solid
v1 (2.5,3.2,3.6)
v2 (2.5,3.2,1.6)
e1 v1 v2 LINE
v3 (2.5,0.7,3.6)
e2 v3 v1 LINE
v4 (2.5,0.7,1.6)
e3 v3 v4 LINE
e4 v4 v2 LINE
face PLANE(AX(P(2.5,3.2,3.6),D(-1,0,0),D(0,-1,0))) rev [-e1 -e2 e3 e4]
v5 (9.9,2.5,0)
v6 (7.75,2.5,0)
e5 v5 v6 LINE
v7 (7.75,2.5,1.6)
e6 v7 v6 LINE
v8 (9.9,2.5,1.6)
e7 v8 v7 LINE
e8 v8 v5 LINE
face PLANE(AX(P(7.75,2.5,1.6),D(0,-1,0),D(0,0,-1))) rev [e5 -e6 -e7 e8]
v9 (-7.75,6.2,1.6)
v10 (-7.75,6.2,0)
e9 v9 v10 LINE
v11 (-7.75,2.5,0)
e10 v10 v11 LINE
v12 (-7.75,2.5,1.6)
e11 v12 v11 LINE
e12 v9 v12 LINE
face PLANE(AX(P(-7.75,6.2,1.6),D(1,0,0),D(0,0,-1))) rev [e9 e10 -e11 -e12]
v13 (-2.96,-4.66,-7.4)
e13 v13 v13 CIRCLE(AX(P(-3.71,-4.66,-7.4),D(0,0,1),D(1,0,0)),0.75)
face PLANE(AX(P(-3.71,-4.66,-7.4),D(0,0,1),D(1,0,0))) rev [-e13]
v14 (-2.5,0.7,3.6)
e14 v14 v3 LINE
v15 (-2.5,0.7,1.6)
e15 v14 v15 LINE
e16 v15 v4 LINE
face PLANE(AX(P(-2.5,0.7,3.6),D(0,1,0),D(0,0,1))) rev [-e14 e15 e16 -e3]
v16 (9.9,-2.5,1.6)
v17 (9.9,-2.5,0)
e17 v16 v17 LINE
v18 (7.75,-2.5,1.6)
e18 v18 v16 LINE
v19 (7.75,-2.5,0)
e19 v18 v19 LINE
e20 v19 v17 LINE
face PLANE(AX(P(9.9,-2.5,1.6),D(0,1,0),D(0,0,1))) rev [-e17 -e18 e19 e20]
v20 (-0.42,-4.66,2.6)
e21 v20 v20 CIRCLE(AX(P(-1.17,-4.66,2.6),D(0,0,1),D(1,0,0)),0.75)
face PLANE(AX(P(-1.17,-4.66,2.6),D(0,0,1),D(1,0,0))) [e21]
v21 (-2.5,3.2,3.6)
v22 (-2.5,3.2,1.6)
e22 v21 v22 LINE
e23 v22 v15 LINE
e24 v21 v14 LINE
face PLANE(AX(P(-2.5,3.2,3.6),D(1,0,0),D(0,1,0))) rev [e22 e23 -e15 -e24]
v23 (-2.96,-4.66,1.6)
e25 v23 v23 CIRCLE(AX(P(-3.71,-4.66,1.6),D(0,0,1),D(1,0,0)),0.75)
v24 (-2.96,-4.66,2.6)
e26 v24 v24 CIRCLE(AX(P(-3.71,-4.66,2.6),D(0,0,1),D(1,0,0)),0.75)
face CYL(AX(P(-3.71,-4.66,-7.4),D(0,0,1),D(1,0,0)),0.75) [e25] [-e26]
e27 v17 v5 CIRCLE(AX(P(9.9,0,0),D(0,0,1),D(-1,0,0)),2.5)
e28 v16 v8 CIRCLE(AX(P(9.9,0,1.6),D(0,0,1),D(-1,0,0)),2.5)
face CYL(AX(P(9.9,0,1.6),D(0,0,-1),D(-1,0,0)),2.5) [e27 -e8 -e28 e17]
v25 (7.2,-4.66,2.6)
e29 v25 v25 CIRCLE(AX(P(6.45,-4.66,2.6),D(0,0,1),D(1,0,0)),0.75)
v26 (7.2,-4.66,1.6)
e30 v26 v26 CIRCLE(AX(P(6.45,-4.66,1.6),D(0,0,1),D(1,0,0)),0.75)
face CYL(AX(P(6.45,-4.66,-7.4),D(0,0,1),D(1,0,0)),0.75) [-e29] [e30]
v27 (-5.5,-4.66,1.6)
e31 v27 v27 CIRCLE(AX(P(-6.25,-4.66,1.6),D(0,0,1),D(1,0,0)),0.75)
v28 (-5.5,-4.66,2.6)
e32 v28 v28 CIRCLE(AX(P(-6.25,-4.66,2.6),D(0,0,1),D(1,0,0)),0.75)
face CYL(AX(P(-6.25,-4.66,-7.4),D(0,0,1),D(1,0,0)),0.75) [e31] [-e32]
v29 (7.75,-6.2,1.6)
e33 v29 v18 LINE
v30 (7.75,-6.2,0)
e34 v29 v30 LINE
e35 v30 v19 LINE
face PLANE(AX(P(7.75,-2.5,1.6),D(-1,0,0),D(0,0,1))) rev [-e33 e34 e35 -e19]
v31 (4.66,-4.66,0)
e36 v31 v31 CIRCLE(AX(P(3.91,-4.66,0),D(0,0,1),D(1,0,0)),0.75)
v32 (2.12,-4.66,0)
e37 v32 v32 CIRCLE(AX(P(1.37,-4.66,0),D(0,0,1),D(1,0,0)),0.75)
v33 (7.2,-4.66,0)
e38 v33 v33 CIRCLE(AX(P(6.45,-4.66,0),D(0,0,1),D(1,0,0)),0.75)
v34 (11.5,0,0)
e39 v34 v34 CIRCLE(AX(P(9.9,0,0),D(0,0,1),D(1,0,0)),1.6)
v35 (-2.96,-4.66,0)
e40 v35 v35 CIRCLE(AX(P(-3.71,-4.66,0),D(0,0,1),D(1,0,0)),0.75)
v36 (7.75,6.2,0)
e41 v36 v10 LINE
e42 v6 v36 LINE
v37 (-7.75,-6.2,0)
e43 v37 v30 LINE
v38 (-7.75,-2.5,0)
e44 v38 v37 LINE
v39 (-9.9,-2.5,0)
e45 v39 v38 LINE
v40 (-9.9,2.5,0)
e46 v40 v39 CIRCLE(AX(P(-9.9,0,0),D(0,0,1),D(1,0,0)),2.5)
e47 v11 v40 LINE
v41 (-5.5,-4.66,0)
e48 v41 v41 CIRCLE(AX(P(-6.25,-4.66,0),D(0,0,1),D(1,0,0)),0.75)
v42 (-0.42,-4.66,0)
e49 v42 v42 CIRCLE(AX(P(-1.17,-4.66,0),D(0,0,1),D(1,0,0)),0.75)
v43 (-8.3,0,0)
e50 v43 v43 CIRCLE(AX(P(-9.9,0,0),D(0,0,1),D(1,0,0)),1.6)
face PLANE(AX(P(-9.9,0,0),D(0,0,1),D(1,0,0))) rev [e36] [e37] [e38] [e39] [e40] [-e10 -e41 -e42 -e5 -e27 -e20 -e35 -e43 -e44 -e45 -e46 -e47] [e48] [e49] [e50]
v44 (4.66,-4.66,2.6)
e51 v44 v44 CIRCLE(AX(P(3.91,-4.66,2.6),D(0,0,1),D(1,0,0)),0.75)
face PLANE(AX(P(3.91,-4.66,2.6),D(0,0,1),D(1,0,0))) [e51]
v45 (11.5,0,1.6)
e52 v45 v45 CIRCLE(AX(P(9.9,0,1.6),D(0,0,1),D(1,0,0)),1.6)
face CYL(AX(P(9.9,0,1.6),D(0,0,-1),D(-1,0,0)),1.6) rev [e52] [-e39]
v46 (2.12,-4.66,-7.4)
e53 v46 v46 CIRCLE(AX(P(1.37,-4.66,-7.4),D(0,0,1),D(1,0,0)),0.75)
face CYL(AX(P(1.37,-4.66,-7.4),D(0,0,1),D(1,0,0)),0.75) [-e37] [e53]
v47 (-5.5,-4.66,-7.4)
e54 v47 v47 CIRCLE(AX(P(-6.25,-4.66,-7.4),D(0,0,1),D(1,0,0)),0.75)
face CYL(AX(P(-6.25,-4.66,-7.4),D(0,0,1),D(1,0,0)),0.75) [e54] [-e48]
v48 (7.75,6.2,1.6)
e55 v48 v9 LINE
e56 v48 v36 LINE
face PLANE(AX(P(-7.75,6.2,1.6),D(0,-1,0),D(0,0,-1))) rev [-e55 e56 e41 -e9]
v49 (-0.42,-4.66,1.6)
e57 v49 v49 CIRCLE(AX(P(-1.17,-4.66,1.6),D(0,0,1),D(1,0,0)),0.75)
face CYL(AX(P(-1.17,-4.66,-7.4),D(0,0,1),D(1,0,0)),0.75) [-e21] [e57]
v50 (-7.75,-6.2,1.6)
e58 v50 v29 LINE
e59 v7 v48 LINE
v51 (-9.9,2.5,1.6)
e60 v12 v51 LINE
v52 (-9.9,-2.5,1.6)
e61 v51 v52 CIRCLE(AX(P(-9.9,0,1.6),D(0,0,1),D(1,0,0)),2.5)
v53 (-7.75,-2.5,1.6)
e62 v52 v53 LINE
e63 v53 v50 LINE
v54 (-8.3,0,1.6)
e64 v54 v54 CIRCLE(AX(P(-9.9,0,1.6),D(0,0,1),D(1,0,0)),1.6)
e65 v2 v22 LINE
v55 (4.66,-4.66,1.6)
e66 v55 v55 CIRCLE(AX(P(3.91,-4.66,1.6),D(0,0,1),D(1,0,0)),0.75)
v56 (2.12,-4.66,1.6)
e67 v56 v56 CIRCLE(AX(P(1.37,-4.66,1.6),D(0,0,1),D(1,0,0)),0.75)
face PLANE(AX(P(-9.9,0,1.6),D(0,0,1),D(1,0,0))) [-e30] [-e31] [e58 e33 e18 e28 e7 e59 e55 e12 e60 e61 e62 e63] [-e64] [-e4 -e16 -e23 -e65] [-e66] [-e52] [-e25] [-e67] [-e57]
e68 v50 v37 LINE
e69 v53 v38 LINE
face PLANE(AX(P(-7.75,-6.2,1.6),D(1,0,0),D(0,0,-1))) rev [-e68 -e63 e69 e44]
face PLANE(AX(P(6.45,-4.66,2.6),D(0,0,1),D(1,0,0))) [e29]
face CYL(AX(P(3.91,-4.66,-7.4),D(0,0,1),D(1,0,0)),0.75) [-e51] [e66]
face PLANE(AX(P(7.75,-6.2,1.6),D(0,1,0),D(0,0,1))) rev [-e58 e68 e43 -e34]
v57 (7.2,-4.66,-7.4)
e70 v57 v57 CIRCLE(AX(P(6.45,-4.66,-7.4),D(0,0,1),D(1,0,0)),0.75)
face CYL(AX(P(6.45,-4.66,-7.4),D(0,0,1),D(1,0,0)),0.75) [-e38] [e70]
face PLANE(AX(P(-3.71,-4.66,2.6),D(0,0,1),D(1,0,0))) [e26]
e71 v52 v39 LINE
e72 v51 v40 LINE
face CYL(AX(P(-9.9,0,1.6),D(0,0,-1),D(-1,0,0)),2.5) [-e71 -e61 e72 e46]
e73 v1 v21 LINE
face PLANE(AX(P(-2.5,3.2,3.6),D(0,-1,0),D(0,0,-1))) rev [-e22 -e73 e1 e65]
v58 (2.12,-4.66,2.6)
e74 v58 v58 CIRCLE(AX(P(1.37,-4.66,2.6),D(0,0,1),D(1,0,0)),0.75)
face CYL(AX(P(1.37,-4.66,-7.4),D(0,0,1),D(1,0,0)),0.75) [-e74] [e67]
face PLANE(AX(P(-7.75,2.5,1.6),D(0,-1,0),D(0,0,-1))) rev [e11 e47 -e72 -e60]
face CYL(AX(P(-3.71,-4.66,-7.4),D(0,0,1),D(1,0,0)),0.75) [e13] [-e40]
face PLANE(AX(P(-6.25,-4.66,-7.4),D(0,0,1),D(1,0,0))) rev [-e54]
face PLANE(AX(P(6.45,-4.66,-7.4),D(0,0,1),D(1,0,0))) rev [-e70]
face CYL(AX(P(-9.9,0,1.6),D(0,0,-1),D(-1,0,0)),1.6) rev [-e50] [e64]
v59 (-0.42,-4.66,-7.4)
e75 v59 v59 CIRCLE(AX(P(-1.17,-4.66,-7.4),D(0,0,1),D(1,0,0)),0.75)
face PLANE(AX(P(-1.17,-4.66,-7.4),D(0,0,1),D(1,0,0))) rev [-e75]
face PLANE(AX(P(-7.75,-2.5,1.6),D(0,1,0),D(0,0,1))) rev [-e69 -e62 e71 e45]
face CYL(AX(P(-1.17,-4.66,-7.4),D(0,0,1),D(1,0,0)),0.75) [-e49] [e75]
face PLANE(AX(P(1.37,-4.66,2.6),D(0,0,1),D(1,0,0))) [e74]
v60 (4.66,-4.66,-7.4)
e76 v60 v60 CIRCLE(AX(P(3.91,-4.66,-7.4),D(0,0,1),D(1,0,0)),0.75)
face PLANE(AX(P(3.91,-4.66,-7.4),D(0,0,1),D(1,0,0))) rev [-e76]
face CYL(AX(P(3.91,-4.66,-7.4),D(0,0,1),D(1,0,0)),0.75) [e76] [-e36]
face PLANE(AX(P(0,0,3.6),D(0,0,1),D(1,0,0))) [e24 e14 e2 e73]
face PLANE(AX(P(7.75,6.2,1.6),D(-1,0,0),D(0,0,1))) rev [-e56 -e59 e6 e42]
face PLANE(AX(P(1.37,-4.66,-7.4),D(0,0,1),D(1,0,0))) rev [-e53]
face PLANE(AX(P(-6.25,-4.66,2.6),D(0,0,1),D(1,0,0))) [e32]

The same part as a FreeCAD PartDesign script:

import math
import FreeCAD as App
import Part
import Sketcher
from FreeCAD import Vector
Q = App.Units.Quantity

doc = App.newDocument("Part")
body = doc.addObject("PartDesign::Body", "Body")

# Sketch on XY plane
sketch1 = body.newObject("Sketcher::SketchObject", "Sketch")
sketch1.AttachmentSupport = (doc.getObject("XY_Plane"), [""])
sketch1.MapMode = "FlatFace"
sketch1.addGeometry(Part.LineSegment(Vector(7.75, 6.2, 0), Vector(-7.75, 6.2, 0)), False)
sketch1.addGeometry(Part.LineSegment(Vector(-7.75, 6.2, 0), Vector(-7.75, 2.5, 0)), False)
sketch1.addGeometry(Part.LineSegment(Vector(-7.75, 2.5, 0), Vector(-9.9, 2.5, 0)), False)
sketch1.addGeometry(Part.ArcOfCircle(Part.Circle(Vector(-9.9, 0, 0), Vector(0, 0, 1), 2.5), math.radians(90), math.radians(270)), False)
sketch1.addGeometry(Part.LineSegment(Vector(-9.9, -2.5, 0), Vector(-7.75, -2.5, 0)), False)
sketch1.addGeometry(Part.LineSegment(Vector(-7.75, -2.5, 0), Vector(-7.75, -6.2, 0)), False)
sketch1.addGeometry(Part.LineSegment(Vector(-7.75, -6.2, 0), Vector(7.75, -6.2, 0)), False)
sketch1.addGeometry(Part.LineSegment(Vector(7.75, -6.2, 0), Vector(7.75, -2.5, 0)), False)
sketch1.addGeometry(Part.LineSegment(Vector(7.75, -2.5, 0), Vector(9.9, -2.5, 0)), False)
sketch1.addGeometry(Part.ArcOfCircle(Part.Circle(Vector(9.9, 0, 0), Vector(0, 0, 1), 2.5), math.radians(-90), math.radians(90)), False)
sketch1.addGeometry(Part.LineSegment(Vector(9.9, 2.5, 0), Vector(7.75, 2.5, 0)), False)
sketch1.addGeometry(Part.LineSegment(Vector(7.75, 2.5, 0), Vector(7.75, 6.2, 0)), False)
sketch1.addGeometry(Part.Circle(Vector(9.9, 0, 0), Vector(0, 0, 1), 1.6), False)
sketch1.addGeometry(Part.Circle(Vector(-9.9, 0, 0), Vector(0, 0, 1), 1.6), False)
sketch1.addConstraint(Sketcher.Constraint("Coincident", 0, 2, 1, 1))
sketch1.addConstraint(Sketcher.Constraint("Coincident", 1, 2, 2, 1))
sketch1.addConstraint(Sketcher.Constraint("Tangent", 2, 2, 3, 1))
sketch1.addConstraint(Sketcher.Constraint("Tangent", 3, 2, 4, 1))
sketch1.addConstraint(Sketcher.Constraint("Coincident", 4, 2, 5, 1))
sketch1.addConstraint(Sketcher.Constraint("Coincident", 5, 2, 6, 1))
sketch1.addConstraint(Sketcher.Constraint("Coincident", 6, 2, 7, 1))
sketch1.addConstraint(Sketcher.Constraint("Coincident", 7, 2, 8, 1))
sketch1.addConstraint(Sketcher.Constraint("Tangent", 8, 2, 9, 1))
sketch1.addConstraint(Sketcher.Constraint("Tangent", 9, 2, 10, 1))
sketch1.addConstraint(Sketcher.Constraint("Coincident", 10, 2, 11, 1))
sketch1.addConstraint(Sketcher.Constraint("Coincident", 11, 2, 0, 1))
sketch1.addConstraint(Sketcher.Constraint("Horizontal", 0))
sketch1.addConstraint(Sketcher.Constraint("Vertical", 1))
sketch1.addConstraint(Sketcher.Constraint("Horizontal", 2))
sketch1.addConstraint(Sketcher.Constraint("Horizontal", 4))
sketch1.addConstraint(Sketcher.Constraint("Vertical", 5))
sketch1.addConstraint(Sketcher.Constraint("Horizontal", 6))
sketch1.addConstraint(Sketcher.Constraint("Vertical", 7))
sketch1.addConstraint(Sketcher.Constraint("Horizontal", 8))
sketch1.addConstraint(Sketcher.Constraint("Horizontal", 10))
sketch1.addConstraint(Sketcher.Constraint("Vertical", 11))
sketch1.addConstraint(Sketcher.Constraint("Coincident", 12, 3, 9, 3))
sketch1.addConstraint(Sketcher.Constraint("Coincident", 13, 3, 3, 3))
sketch1.addConstraint(Sketcher.Constraint("Equal", 3, 9))
sketch1.addConstraint(Sketcher.Constraint("Equal", 12, 13))
sketch1.addConstraint(Sketcher.Constraint("Symmetric", 3, 3, 9, 3, -1, 1))
sketch1.addConstraint(Sketcher.Constraint("Symmetric", 0, 2, 6, 2, -1, 1))
sketch1.addConstraint(Sketcher.Constraint("Symmetric", 4, 2, 7, 2, -2))
sketch1.addConstraint(Sketcher.Constraint("Vertical", 7, 2, 10, 2))
sketch1.addConstraint(Sketcher.Constraint("Diameter", 12, Q("3.2 mm")))
sketch1.addConstraint(Sketcher.Constraint("Radius", 3, Q("2.5 mm")))
sketch1.addConstraint(Sketcher.Constraint("DistanceX", 0, 2, 0, 1, Q("15.5 mm")))
sketch1.addConstraint(Sketcher.Constraint("DistanceY", 1, 2, 1, 1, Q("3.7 mm")))
sketch1.addConstraint(Sketcher.Constraint("DistanceX", 2, 2, 2, 1, Q("2.15 mm")))
pad1 = body.newObject("PartDesign::Pad", "Pad")
pad1.Profile = sketch1
pad1.Length = 1.6

# Sketch on XY plane
sketch2 = body.newObject("Sketcher::SketchObject", "Sketch001")
sketch2.AttachmentSupport = (doc.getObject("XY_Plane"), [""])
sketch2.MapMode = "FlatFace"
sketch2.AttachmentOffset = App.Placement(Vector(0, 0, 1.6), App.Rotation())
sketch2.addGeometry(Part.LineSegment(Vector(-2.5, 3.2, 0), Vector(-2.5, 0.7, 0)), False)
sketch2.addGeometry(Part.LineSegment(Vector(-2.5, 0.7, 0), Vector(2.5, 0.7, 0)), False)
sketch2.addGeometry(Part.LineSegment(Vector(2.5, 0.7, 0), Vector(2.5, 3.2, 0)), False)
sketch2.addGeometry(Part.LineSegment(Vector(2.5, 3.2, 0), Vector(-2.5, 3.2, 0)), False)
sketch2.addConstraint(Sketcher.Constraint("Coincident", 0, 2, 1, 1))
sketch2.addConstraint(Sketcher.Constraint("Coincident", 1, 2, 2, 1))
sketch2.addConstraint(Sketcher.Constraint("Coincident", 2, 2, 3, 1))
sketch2.addConstraint(Sketcher.Constraint("Coincident", 3, 2, 0, 1))
sketch2.addConstraint(Sketcher.Constraint("Vertical", 0))
sketch2.addConstraint(Sketcher.Constraint("Horizontal", 1))
sketch2.addConstraint(Sketcher.Constraint("Vertical", 2))
sketch2.addConstraint(Sketcher.Constraint("Horizontal", 3))
sketch2.addConstraint(Sketcher.Constraint("DistanceX", 1, 1, 1, 2, Q("5 mm")))
sketch2.addConstraint(Sketcher.Constraint("DistanceY", 0, 2, 0, 1, Q("2.5 mm")))
sketch2.addConstraint(Sketcher.Constraint("DistanceX", 0, 2, -1, 1, Q("2.5 mm")))
sketch2.addConstraint(Sketcher.Constraint("DistanceY", -1, 1, 0, 2, Q("0.7 mm")))
pad2 = body.newObject("PartDesign::Pad", "Pad001")
pad2.Profile = sketch2
pad2.Length = 2

# Sketch on XY plane
sketch3 = body.newObject("Sketcher::SketchObject", "Sketch002")
sketch3.AttachmentSupport = (doc.getObject("XY_Plane"), [""])
sketch3.MapMode = "FlatFace"
sketch3.AttachmentOffset = App.Placement(Vector(0, 0, 2.6), App.Rotation())
sketch3.addGeometry(Part.Circle(Vector(-6.25, -4.66, 0), Vector(0, 0, 1), 0.75), False)
sketch3.addConstraint(Sketcher.Constraint("Diameter", 0, Q("1.5 mm")))
sketch3.addConstraint(Sketcher.Constraint("DistanceX", 0, 3, -1, 1, Q("6.25 mm")))
sketch3.addConstraint(Sketcher.Constraint("DistanceY", 0, 3, -1, 1, Q("4.66 mm")))
pad3 = body.newObject("PartDesign::Pad", "Pad002")
pad3.Profile = sketch3
pad3.Length = 10
pad3.Reversed = True
doc.recompute()

linearpattern = body.newObject("PartDesign::LinearPattern", "LinearPattern")
linearpattern.Originals = [pad3]
linearpattern.Direction = (doc.getObject("X_Axis"), [""])
linearpattern.Mode = "offset"
linearpattern.Offset = 2.54
linearpattern.Occurrences = 6
body.Tip = linearpattern

doc.recompute()
